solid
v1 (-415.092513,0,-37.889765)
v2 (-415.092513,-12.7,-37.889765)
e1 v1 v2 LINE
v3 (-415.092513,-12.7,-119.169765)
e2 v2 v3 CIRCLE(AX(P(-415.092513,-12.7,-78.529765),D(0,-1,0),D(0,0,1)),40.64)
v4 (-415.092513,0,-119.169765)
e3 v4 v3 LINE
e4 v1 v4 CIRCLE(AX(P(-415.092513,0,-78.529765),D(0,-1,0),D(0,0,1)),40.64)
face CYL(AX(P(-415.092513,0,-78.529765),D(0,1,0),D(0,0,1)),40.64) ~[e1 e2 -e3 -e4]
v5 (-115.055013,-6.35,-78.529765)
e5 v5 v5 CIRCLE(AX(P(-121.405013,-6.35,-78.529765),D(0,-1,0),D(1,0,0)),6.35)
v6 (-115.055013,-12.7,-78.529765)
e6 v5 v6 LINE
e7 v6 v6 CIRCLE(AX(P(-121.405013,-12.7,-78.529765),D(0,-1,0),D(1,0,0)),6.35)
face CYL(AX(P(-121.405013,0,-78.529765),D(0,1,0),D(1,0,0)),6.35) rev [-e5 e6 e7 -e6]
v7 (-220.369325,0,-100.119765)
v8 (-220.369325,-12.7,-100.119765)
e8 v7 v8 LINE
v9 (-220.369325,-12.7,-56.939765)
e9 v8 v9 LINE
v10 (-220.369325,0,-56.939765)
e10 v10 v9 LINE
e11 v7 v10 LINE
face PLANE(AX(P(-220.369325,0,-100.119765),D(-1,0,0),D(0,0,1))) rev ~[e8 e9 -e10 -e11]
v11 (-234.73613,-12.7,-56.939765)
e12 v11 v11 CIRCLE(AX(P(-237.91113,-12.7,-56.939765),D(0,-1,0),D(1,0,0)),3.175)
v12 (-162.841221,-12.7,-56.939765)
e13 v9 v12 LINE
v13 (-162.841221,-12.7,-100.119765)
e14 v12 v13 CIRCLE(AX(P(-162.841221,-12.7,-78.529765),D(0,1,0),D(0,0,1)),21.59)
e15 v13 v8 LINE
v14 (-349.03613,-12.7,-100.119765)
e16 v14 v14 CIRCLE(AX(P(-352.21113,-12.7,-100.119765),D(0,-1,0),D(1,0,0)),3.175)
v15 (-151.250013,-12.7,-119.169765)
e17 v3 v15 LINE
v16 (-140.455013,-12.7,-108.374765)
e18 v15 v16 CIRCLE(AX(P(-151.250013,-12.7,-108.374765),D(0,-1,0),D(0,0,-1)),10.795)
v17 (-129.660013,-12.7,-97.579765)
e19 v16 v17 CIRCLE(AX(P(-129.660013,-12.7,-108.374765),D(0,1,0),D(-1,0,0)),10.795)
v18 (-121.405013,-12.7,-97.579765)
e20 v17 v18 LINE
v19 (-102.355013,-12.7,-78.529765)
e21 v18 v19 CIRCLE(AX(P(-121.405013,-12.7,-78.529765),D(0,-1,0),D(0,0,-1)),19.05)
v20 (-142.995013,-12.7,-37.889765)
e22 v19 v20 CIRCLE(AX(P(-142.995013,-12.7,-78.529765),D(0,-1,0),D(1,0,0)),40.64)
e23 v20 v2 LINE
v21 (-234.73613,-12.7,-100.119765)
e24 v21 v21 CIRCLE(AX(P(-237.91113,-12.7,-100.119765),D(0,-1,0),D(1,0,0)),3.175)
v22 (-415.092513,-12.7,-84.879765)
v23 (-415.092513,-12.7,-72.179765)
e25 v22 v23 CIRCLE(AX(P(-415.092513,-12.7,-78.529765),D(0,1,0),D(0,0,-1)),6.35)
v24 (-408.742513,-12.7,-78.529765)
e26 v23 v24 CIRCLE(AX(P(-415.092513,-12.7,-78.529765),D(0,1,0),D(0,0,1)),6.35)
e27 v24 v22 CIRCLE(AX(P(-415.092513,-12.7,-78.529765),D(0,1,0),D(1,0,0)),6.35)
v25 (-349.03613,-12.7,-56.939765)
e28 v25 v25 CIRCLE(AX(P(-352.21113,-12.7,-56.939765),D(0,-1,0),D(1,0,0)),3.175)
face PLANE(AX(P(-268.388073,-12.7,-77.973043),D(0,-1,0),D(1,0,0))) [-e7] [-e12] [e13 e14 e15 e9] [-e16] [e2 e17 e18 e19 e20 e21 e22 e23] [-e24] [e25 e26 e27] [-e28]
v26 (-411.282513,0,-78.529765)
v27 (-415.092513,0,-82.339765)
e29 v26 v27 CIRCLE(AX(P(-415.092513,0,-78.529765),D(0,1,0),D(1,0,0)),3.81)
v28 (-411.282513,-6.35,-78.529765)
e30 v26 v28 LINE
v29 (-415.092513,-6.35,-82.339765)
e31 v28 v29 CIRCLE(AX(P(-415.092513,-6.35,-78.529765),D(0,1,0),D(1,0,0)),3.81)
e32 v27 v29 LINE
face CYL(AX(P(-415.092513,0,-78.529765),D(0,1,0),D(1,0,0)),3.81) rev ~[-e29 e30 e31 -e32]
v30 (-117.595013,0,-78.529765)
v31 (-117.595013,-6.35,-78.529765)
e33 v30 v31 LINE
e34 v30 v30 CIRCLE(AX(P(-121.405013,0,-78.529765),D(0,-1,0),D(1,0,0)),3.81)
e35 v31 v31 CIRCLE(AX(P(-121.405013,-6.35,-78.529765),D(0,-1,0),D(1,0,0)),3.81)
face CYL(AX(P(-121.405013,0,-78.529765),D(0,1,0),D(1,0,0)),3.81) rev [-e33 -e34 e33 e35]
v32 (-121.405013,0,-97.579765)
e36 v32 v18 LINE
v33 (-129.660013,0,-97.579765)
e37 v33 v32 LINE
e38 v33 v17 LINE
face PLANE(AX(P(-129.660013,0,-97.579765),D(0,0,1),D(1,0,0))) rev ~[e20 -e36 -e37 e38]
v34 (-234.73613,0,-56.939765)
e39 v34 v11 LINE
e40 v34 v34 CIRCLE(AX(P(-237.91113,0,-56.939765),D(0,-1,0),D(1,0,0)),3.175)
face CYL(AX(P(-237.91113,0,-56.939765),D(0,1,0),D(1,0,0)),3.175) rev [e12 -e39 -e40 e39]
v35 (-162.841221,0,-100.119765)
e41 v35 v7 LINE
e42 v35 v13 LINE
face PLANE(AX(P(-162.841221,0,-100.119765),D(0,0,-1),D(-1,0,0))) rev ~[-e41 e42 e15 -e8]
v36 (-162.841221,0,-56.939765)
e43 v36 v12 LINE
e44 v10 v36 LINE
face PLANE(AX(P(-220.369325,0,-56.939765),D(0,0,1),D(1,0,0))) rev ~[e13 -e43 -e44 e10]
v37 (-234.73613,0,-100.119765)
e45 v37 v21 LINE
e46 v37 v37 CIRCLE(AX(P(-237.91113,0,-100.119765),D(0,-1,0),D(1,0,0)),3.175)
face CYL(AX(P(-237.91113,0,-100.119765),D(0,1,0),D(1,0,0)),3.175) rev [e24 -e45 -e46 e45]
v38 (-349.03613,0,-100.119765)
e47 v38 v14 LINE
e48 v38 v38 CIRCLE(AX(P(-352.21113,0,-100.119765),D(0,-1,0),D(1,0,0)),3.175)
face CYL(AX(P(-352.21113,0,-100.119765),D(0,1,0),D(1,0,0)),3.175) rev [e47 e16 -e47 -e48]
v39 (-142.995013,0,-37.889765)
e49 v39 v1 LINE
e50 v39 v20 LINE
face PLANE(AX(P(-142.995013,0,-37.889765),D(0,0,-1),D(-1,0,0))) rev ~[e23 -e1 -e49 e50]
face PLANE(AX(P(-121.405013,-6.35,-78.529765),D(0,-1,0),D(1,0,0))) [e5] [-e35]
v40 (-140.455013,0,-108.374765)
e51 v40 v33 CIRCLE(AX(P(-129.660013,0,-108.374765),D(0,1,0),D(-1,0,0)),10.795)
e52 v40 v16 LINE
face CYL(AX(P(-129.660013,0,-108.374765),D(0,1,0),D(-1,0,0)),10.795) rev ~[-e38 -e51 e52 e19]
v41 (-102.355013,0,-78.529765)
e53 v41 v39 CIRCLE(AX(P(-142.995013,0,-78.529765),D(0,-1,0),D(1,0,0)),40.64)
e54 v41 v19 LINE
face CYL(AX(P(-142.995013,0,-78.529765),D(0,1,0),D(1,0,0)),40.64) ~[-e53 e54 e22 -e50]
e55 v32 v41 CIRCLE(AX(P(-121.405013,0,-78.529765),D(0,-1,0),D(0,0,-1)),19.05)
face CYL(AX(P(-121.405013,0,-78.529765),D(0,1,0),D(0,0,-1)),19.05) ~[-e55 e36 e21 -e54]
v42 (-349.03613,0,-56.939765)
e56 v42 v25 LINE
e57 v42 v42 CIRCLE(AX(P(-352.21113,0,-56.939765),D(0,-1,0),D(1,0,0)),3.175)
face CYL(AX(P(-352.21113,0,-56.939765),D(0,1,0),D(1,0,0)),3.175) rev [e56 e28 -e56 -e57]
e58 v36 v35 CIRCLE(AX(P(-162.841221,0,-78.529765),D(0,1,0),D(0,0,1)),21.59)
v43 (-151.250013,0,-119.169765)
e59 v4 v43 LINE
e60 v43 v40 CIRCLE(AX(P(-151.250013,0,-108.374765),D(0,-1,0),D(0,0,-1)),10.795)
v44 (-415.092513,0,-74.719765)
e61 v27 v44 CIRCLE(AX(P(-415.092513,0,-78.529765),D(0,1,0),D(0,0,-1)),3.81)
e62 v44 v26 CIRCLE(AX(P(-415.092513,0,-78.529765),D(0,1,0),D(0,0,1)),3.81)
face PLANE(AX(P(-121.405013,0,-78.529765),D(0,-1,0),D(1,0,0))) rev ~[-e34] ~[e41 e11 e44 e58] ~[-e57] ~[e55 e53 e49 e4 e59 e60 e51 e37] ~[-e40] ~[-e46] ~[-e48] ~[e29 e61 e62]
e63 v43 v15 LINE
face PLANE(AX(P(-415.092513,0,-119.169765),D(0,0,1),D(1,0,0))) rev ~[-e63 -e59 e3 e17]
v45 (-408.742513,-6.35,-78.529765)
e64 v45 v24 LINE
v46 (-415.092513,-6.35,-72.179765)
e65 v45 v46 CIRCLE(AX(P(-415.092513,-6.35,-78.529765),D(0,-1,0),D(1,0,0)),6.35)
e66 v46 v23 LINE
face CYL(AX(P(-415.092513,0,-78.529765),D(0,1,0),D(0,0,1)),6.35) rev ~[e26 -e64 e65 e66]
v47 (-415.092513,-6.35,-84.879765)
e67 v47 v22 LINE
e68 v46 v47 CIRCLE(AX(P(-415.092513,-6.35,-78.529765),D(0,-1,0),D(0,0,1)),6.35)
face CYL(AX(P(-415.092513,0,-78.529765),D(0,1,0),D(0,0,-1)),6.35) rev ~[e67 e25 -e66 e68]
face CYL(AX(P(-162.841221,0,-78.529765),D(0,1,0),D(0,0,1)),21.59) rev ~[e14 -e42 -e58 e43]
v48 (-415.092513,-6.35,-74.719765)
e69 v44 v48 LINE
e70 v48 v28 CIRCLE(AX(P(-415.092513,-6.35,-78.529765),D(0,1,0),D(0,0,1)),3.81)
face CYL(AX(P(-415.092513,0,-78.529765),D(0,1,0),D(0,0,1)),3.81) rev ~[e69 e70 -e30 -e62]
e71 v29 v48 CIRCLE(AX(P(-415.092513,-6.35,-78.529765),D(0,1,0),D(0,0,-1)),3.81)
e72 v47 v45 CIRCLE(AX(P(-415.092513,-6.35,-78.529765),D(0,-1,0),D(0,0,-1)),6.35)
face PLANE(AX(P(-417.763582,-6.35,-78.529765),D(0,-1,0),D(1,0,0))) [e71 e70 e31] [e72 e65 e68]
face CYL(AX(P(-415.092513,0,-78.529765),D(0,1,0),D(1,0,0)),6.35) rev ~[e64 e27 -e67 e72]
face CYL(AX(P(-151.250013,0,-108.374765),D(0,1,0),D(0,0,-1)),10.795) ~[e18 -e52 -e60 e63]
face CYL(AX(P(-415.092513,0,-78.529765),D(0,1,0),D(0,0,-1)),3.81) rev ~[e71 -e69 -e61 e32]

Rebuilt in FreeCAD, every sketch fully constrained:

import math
import FreeCAD as App
import Part
import Sketcher
Q = App.Units.Quantity

doc = App.newDocument("Part")
body = doc.addObject("PartDesign::Body", "Body")

# Sketch on XZ plane
sketch1 = body.newObject("Sketcher::SketchObject", "Sketch")
sketch1.AttachmentSupport = (doc.getObject("XZ_Plane"), [""])
sketch1.MapMode = "FlatFace"
sketch1.addGeometry([
    Part.ArcOfCircle(Part.Circle(App.Vector(-129.660013, -108.374765, 0), App.Vector(0, 0, 1), 10.795), math.radians(90), math.radians(180)),  # 0
    Part.LineSegment(App.Vector(-129.660013, -97.579765, 0), App.Vector(-121.405013, -97.579765, 0)),  # 1
    Part.ArcOfCircle(Part.Circle(App.Vector(-121.405013, -78.529765, 0), App.Vector(0, 0, 1), 19.05), math.radians(-90), math.radians(0)),  # 2
    Part.ArcOfCircle(Part.Circle(App.Vector(-142.995013, -78.529765, 0), App.Vector(0, 0, 1), 40.64), math.radians(0), math.radians(90)),  # 3
    Part.LineSegment(App.Vector(-142.995013, -37.889765, 0), App.Vector(-415.092513, -37.889765, 0)),  # 4
    Part.ArcOfCircle(Part.Circle(App.Vector(-415.092513, -78.529765, 0), App.Vector(0, 0, 1), 40.64), math.radians(90), math.radians(270)),  # 5
    Part.LineSegment(App.Vector(-415.092513, -119.169765, 0), App.Vector(-151.250013, -119.169765, 0)),  # 6
    Part.ArcOfCircle(Part.Circle(App.Vector(-151.250013, -108.374765, 0), App.Vector(0, 0, 1), 10.795), math.radians(-90), math.radians(0)),  # 7
    Part.ArcOfCircle(Part.Circle(App.Vector(-415.092513, -78.529765, 0), App.Vector(0, 0, 1), 6.35), math.radians(-90), math.radians(0)),  # 8
    Part.ArcOfCircle(Part.Circle(App.Vector(-415.092513, -78.529765, 0), App.Vector(0, 0, 1), 6.35), math.radians(90), math.radians(270)),  # 9
    Part.ArcOfCircle(Part.Circle(App.Vector(-415.092513, -78.529765, 0), App.Vector(0, 0, 1), 6.35), math.radians(0), math.radians(90)),  # 10
    Part.Circle(App.Vector(-352.21113, -100.119765, 0), App.Vector(0, 0, 1), 3.175),  # 11
    Part.Circle(App.Vector(-237.91113, -100.119765, 0), App.Vector(0, 0, 1), 3.175),  # 12
    Part.Circle(App.Vector(-352.21113, -56.939765, 0), App.Vector(0, 0, 1), 3.175),  # 13
    Part.Circle(App.Vector(-237.91113, -56.939765, 0), App.Vector(0, 0, 1), 3.175),  # 14
    Part.LineSegment(App.Vector(-220.369325, -56.939765, 0), App.Vector(-162.841221, -56.939765, 0)),  # 15
    Part.ArcOfCircle(Part.Circle(App.Vector(-162.841221, -78.529765, 0), App.Vector(0, 0, 1), 21.59), math.radians(-90), math.radians(90)),  # 16
    Part.LineSegment(App.Vector(-162.841221, -100.119765, 0), App.Vector(-220.369325, -100.119765, 0)),  # 17
    Part.LineSegment(App.Vector(-220.369325, -100.119765, 0), App.Vector(-220.369325, -56.939765, 0)),  # 18
    Part.Circle(App.Vector(-121.405013, -78.529765, 0), App.Vector(0, 0, 1), 6.35),  # 19
], False)
sketch1.addConstraint([
    Sketcher.Constraint("Tangent", 0, 1, 1, 1),
    Sketcher.Constraint("Tangent", 1, 2, 2, 1),
    Sketcher.Constraint("Tangent", 2, 2, 3, 1),
    Sketcher.Constraint("Tangent", 3, 2, 4, 1),
    Sketcher.Constraint("Tangent", 4, 2, 5, 1),
    Sketcher.Constraint("Tangent", 5, 2, 6, 1),
    Sketcher.Constraint("Tangent", 6, 2, 7, 1),
    Sketcher.Constraint("Tangent", 7, 2, 0, 2),
    Sketcher.Constraint("Tangent", 8, 1, 9, 2),
    Sketcher.Constraint("Tangent", 9, 1, 10, 2),
    Sketcher.Constraint("Tangent", 10, 1, 8, 2),
    Sketcher.Constraint("Tangent", 15, 2, 16, 2),
    Sketcher.Constraint("Tangent", 16, 1, 17, 1),
    Sketcher.Constraint("Coincident", 17, 2, 18, 1),
    Sketcher.Constraint("Coincident", 18, 2, 15, 1),
    Sketcher.Constraint("Horizontal", 1),
    Sketcher.Constraint("Horizontal", 4),
    Sketcher.Constraint("Horizontal", 6),
    Sketcher.Constraint("Horizontal", 15),
    Sketcher.Constraint("Horizontal", 17),
    Sketcher.Constraint("Vertical", 18),
    Sketcher.Constraint("Coincident", 8, 3, 5, 3),
    Sketcher.Constraint("Coincident", 19, 3, 2, 3),
    Sketcher.Constraint("Equal", 3, 5),
    Sketcher.Constraint("Equal", 0, 7),
    Sketcher.Constraint("Equal", 11, 12),
    Sketcher.Constraint("Equal", 12, 13),
    Sketcher.Constraint("Equal", 13, 14),
    Sketcher.Constraint("Equal", 10, 19),
    Sketcher.Constraint("Horizontal", 2, 3, 3, 3),
    Sketcher.Constraint("Horizontal", 0, 3, 7, 3),
    Sketcher.Constraint("Horizontal", 11, 3, 12, 3),
    Sketcher.Constraint("Horizontal", 13, 3, 14, 3),
    Sketcher.Constraint("Horizontal", 10, 3, 16, 3),
    Sketcher.Constraint("Horizontal", 2, 2, 10, 1),
    Sketcher.Constraint("Horizontal", 14, 3, 15, 2),
    Sketcher.Constraint("Horizontal", 12, 3, 16, 1),
    Sketcher.Constraint("Vertical", 11, 3, 13, 3),
    Sketcher.Constraint("Vertical", 12, 3, 14, 3),
    Sketcher.Constraint("Vertical", 5, 2, 8, 1),
    Sketcher.Constraint("Vertical", 8, 1, 9, 1),
    Sketcher.Constraint("Diameter", 19, Q("0.5 in")),
    Sketcher.Constraint("Radius", 3, Q("1.6 in")),
    Sketcher.Constraint("Diameter", 11, Q("0.25 in")),
    Sketcher.Constraint("Radius", 2, Q("0.75 in")),
    Sketcher.Constraint("Radius", 16, Q("0.85 in")),
    Sketcher.Constraint("DistanceX", 11, 3, 12, 3, Q("4.5 in")),
    Sketcher.Constraint("DistanceX", 1, 1, 1, 2, Q("0.325 in")),
    Sketcher.Constraint("DistanceX", 4, 2, 4, 1, Q("10.7125 in")),
    Sketcher.Constraint("DistanceX", 15, 1, 15, 2, 57.528105),
    Sketcher.Constraint("DistanceX", 11, 3, -1, 1, 352.21113),
    Sketcher.Constraint("DistanceX", 16, 3, -1, 1, 162.841221),
    Sketcher.Constraint("DistanceX", 16, 3, 3, 3, 19.846208),
    Sketcher.Constraint("DistanceY", 0, 3, -1, 1, 108.374765),
])
pad1 = body.newObject("PartDesign::Pad", "Pad")
pad1.Profile = sketch1
pad1.Length = Q("0.5 in")

# Sketch on XZ plane
sketch2 = body.newObject("Sketcher::SketchObject", "Sketch001")
sketch2.AttachmentSupport = (doc.getObject("XZ_Plane"), [""])
sketch2.MapMode = "FlatFace"
sketch2.addGeometry([
    Part.ArcOfCircle(Part.Circle(App.Vector(-415.092513, -78.529765, 0), App.Vector(0, 0, 1), 6.35), math.radians(90), math.radians(270)),  # 0
    Part.ArcOfCircle(Part.Circle(App.Vector(-415.092513, -78.529765, 0), App.Vector(0, 0, 1), 6.35), math.radians(-90), math.radians(0)),  # 1
    Part.ArcOfCircle(Part.Circle(App.Vector(-415.092513, -78.529765, 0), App.Vector(0, 0, 1), 6.35), math.radians(0), math.radians(90)),  # 2
    Part.ArcOfCircle(Part.Circle(App.Vector(-415.092513, -78.529765, 0), App.Vector(0, 0, 1), 3.81), math.radians(90), math.radians(270)),  # 3
    Part.ArcOfCircle(Part.Circle(App.Vector(-415.092513, -78.529765, 0), App.Vector(0, 0, 1), 3.81), math.radians(0), math.radians(90)),  # 4
    Part.ArcOfCircle(Part.Circle(App.Vector(-415.092513, -78.529765, 0), App.Vector(0, 0, 1), 3.81), math.radians(-90), math.radians(0)),  # 5
], False)
sketch2.addConstraint([
    Sketcher.Constraint("Tangent", 0, 2, 1, 1),
    Sketcher.Constraint("Tangent", 1, 2, 2, 1),
    Sketcher.Constraint("Tangent", 2, 2, 0, 1),
    Sketcher.Constraint("Tangent", 3, 1, 4, 2),
    Sketcher.Constraint("Tangent", 4, 1, 5, 2),
    Sketcher.Constraint("Tangent", 5, 1, 3, 2),
    Sketcher.Constraint("Coincident", 3, 3, 0, 3),
    Sketcher.Constraint("Horizontal", 5, 3, 1, 2),
    Sketcher.Constraint("Horizontal", 1, 2, 4, 1),
    Sketcher.Constraint("Vertical", 5, 3, 0, 2),
    Sketcher.Constraint("Vertical", 0, 2, 2, 2),
    Sketcher.Constraint("Vertical", 2, 2, 3, 1),
    Sketcher.Constraint("Vertical", 3, 1, 5, 1),
    Sketcher.Constraint("Radius", 0, Q("0.25 in")),
    Sketcher.Constraint("Radius", 3, Q("0.15 in")),
    Sketcher.Constraint("DistanceX", 0, 3, -1, 1, 415.092513),
    Sketcher.Constraint("DistanceY", 0, 3, -1, 1, 78.529765),
])
pad2 = body.newObject("PartDesign::Pad", "Pad001")
pad2.Profile = sketch2
pad2.Length = Q("0.25 in")

# Sketch on XZ plane
sketch3 = body.newObject("Sketcher::SketchObject", "Sketch002")
sketch3.AttachmentSupport = (doc.getObject("XZ_Plane"), [""])
sketch3.MapMode = "FlatFace"
sketch3.addGeometry([
    Part.Circle(App.Vector(-121.405013, -78.529765, 0), App.Vector(0, 0, 1), 6.35),
    Part.Circle(App.Vector(-121.405013, -78.529765, 0), App.Vector(0, 0, 1), 3.81),
], False)
sketch3.addConstraint([
    Sketcher.Constraint("Coincident", 1, 3, 0, 3),
    Sketcher.Constraint("Diameter", 0, Q("0.5 in")),
    Sketcher.Constraint("Diameter", 1, Q("0.3 in")),
    Sketcher.Constraint("DistanceX", 0, 3, -1, 1, 121.405013),
    Sketcher.Constraint("DistanceY", 0, 3, -1, 1, 78.529765),
])
pad3 = body.newObject("PartDesign::Pad", "Pad002")
pad3.Profile = sketch3
pad3.Length = Q("0.25 in")

doc.recompute()
